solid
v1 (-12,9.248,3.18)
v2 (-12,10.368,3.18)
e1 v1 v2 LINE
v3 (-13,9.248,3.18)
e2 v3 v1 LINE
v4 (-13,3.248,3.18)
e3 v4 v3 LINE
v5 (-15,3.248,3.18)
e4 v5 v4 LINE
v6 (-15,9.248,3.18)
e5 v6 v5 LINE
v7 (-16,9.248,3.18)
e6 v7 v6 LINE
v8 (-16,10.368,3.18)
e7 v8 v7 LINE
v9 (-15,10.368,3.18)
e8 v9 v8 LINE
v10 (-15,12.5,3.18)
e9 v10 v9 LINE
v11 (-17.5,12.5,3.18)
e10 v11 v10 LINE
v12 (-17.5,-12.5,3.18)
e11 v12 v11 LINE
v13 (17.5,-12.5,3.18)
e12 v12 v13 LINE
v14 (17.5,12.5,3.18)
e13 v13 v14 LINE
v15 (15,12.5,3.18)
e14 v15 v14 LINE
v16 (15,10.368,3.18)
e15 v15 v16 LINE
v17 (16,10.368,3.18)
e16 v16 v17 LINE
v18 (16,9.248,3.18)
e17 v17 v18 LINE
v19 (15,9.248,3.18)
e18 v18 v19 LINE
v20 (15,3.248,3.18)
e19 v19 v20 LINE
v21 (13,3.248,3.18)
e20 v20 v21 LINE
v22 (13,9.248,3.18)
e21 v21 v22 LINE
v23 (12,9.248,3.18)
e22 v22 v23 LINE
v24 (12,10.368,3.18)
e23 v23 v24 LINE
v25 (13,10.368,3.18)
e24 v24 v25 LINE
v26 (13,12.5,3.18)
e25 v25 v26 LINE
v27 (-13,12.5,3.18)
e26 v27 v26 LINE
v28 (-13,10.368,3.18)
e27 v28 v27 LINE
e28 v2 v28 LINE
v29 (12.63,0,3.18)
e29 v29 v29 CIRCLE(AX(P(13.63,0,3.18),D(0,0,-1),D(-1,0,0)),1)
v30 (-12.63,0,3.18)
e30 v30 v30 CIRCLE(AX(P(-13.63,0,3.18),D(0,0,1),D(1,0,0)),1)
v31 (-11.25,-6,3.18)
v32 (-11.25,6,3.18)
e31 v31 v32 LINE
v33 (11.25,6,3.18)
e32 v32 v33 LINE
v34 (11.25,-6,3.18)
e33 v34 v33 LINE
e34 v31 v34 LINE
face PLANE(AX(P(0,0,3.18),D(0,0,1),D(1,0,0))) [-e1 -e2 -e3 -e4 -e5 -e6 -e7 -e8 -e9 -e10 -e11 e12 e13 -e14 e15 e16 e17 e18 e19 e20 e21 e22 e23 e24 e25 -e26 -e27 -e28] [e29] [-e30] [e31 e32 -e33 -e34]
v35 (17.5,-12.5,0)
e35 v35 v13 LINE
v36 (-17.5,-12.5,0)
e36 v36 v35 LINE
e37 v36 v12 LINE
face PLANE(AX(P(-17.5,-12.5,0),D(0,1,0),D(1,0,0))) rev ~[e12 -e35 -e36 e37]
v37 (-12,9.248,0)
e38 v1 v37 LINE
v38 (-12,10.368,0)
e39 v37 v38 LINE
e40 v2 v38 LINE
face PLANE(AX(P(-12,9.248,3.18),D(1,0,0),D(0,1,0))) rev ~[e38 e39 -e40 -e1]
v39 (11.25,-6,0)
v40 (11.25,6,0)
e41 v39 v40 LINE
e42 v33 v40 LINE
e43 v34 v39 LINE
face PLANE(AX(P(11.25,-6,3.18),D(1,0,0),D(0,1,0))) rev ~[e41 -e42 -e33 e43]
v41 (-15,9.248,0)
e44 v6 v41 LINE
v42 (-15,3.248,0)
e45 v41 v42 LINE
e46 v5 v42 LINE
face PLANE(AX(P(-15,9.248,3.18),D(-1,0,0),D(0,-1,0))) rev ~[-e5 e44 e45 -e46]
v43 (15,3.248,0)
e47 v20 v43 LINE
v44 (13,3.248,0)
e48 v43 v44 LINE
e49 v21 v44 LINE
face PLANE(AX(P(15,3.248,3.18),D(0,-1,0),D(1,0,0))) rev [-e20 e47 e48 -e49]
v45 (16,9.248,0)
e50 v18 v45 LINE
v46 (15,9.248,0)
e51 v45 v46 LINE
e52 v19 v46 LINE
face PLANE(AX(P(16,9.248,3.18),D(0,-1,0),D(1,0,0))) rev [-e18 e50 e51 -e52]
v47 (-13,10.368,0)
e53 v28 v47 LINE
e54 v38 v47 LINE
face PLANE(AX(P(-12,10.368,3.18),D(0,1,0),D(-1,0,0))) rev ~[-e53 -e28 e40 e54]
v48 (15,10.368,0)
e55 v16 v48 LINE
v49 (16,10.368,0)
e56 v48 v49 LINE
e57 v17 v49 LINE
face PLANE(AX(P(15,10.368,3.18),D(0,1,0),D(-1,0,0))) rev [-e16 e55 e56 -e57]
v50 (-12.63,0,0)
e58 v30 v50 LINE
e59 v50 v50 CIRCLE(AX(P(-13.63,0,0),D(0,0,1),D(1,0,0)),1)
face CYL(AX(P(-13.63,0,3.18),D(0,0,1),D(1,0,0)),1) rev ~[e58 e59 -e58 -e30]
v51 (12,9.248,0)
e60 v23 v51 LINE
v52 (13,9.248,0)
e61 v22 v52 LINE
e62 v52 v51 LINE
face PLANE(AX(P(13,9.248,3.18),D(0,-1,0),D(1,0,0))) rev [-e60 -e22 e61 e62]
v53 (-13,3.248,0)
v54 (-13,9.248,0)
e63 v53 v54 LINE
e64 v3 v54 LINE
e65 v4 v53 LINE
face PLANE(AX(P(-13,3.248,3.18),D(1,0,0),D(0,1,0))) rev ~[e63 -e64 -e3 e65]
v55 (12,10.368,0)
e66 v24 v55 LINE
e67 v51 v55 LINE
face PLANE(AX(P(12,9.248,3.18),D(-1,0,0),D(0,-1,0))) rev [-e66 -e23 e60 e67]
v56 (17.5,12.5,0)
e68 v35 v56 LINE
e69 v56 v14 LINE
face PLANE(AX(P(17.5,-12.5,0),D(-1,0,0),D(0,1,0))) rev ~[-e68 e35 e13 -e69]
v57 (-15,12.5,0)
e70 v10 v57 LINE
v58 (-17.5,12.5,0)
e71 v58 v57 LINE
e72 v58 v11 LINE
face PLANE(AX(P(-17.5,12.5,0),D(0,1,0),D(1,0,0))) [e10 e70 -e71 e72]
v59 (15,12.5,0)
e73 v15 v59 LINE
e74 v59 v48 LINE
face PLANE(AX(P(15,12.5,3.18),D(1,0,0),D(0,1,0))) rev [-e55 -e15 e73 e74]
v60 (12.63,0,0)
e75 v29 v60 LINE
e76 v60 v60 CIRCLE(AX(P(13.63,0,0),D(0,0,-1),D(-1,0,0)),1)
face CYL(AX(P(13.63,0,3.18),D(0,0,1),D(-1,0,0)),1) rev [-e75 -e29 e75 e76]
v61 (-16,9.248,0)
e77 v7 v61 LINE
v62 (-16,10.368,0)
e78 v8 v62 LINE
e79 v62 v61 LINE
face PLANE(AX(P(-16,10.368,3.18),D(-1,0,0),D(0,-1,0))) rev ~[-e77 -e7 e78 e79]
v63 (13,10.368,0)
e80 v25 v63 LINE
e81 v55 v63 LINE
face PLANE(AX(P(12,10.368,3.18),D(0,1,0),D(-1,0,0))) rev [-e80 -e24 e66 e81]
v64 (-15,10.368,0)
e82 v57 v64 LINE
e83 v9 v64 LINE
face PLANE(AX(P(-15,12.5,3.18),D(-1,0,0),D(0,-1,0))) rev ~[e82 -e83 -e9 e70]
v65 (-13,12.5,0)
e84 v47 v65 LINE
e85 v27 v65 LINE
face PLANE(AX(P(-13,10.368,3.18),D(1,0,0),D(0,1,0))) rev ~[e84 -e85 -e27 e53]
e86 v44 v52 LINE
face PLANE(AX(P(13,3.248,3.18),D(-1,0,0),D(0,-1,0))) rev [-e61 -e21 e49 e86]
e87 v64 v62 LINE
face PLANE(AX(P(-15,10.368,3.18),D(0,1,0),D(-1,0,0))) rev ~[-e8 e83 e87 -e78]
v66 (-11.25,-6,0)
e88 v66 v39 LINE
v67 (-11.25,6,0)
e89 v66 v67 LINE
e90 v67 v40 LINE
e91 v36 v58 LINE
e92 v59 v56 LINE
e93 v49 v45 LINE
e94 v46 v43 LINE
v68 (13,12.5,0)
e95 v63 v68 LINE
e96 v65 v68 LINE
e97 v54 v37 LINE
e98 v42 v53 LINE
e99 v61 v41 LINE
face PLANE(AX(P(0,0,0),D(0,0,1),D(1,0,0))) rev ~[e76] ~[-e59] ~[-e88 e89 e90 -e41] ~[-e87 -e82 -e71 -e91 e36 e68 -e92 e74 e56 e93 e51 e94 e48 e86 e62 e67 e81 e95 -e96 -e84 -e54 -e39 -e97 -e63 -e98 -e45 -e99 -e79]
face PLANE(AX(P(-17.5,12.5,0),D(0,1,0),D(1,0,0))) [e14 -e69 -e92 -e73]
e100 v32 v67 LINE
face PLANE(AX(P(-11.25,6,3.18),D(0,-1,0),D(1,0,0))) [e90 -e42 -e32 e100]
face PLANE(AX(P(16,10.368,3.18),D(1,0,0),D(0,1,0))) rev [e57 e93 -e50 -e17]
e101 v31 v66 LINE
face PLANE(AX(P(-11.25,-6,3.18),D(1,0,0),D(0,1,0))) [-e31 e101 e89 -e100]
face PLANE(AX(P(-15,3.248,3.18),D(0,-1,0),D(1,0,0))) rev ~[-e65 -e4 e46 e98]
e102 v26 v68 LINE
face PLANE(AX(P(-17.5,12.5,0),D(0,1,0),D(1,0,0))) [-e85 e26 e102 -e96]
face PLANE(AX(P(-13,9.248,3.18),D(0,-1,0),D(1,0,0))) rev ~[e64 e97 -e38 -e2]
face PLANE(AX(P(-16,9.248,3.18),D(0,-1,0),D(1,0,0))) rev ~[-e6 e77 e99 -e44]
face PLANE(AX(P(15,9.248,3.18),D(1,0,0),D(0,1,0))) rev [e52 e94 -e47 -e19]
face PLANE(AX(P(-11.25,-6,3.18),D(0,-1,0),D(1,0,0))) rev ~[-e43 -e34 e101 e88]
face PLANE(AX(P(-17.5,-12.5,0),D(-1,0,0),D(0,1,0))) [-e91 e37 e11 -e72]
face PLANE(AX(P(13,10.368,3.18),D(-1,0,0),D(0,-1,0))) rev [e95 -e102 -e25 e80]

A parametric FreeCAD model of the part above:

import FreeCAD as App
import Part
import Sketcher
Q = App.Units.Quantity

doc = App.newDocument("Part")
body = doc.addObject("PartDesign::Body", "Body")

sketch1 = body.newObject("Sketcher::SketchObject", "Sketch")
sketch1.AttachmentSupport = (doc.getObject("XY_Plane"), [""])
sketch1.MapMode = "FlatFace"
sketch1.addGeometry([
    Part.LineSegment(App.Vector(-18, 12, 0), App.Vector(-18, -12, 0)),
    Part.LineSegment(App.Vector(-18, -12, 0), App.Vector(18, -12, 0)),
    Part.LineSegment(App.Vector(18, -12, 0), App.Vector(18, 12, 0)),
    Part.LineSegment(App.Vector(18, 12, 0), App.Vector(-18, 12, 0)),
], False)
sketch1.addConstraint([
    Sketcher.Constraint("Coincident", 0, 2, 1, 1),
    Sketcher.Constraint("Coincident", 1, 2, 2, 1),
    Sketcher.Constraint("Coincident", 2, 2, 3, 1),
    Sketcher.Constraint("Coincident", 3, 2, 0, 1),
    Sketcher.Constraint("Vertical", 0),
    Sketcher.Constraint("Horizontal", 1),
    Sketcher.Constraint("Vertical", 2),
    Sketcher.Constraint("Horizontal", 3),
    Sketcher.Constraint("Symmetric", 0, 2, 2, 2, -1, 1),
    Sketcher.Constraint("DistanceX", 1, 1, 1, 2, Q("35 mm")),
    Sketcher.Constraint("DistanceY", 0, 2, 0, 1, Q("25 mm")),
])
pad1 = body.newObject("PartDesign::Pad", "Pad")
pad1.Profile = sketch1
pad1.Length = 3.18

sketch2 = body.newObject("Sketcher::SketchObject", "Sketch001")
sketch2.AttachmentSupport = (doc.getObject("XY_Plane"), [""])
sketch2.MapMode = "FlatFace"
sketch2.AttachmentOffset = App.Placement(App.Vector(0, 0, 3.18), App.Rotation())
sketch2.addGeometry([
    Part.LineSegment(App.Vector(-11, 6, 0), App.Vector(-11, -6, 0)),
    Part.LineSegment(App.Vector(-11, -6, 0), App.Vector(11, -6, 0)),
    Part.LineSegment(App.Vector(11, -6, 0), App.Vector(11, 6, 0)),
    Part.LineSegment(App.Vector(11, 6, 0), App.Vector(-11, 6, 0)),
], False)
sketch2.addConstraint([
    Sketcher.Constraint("Coincident", 0, 2, 1, 1),
    Sketcher.Constraint("Coincident", 1, 2, 2, 1),
    Sketcher.Constraint("Coincident", 2, 2, 3, 1),
    Sketcher.Constraint("Coincident", 3, 2, 0, 1),
    Sketcher.Constraint("Vertical", 0),
    Sketcher.Constraint("Horizontal", 1),
    Sketcher.Constraint("Vertical", 2),
    Sketcher.Constraint("Horizontal", 3),
    Sketcher.Constraint("Symmetric", 0, 2, 2, 2, -1, 1),
    Sketcher.Constraint("DistanceY", 0, 2, 0, 1, Q("12 mm")),
    Sketcher.Constraint("DistanceX", 1, 1, 1, 2, Q("22.5 mm")),
])
pocket1 = body.newObject("PartDesign::Pocket", "Pocket")
pocket1.Profile = sketch2
pocket1.Length = 3.18

sketch3 = body.newObject("Sketcher::SketchObject", "Sketch002")
sketch3.AttachmentSupport = (doc.getObject("XY_Plane"), [""])
sketch3.MapMode = "FlatFace"
sketch3.AttachmentOffset = App.Placement(App.Vector(0, 0, 3.18), App.Rotation())
sketch3.addGeometry(Part.Circle(App.Vector(-13.6, 0, 0), App.Vector(0, 0, 1), 1), False)
sketch3.addConstraint([
    Sketcher.Constraint("PointOnObject", 0, 3, -1),
    Sketcher.Constraint("Diameter", 0, Q("2 mm")),
    Sketcher.Constraint("DistanceX", 0, 3, -1, 1, Q("13.63 mm")),
])
pocket2 = body.newObject("PartDesign::Pocket", "Pocket001")
pocket2.Profile = sketch3
pocket2.Length = 3.18
doc.recompute()

mirrored = body.newObject("PartDesign::Mirrored", "Mirrored")
mirrored.Originals = [pocket2]
mirrored.MirrorPlane = (doc.getObject("YZ_Plane"), [""])
body.Tip = mirrored

sketch4 = body.newObject("Sketcher::SketchObject", "Sketch003")
sketch4.AttachmentSupport = (doc.getObject("XY_Plane"), [""])
sketch4.MapMode = "FlatFace"
sketch4.AttachmentOffset = App.Placement(App.Vector(0, 0, 3.18), App.Rotation())
sketch4.addGeometry([
    Part.LineSegment(App.Vector(-13, 12.5, 0), App.Vector(-15, 12.5, 0)),
    Part.LineSegment(App.Vector(-15, 12.5, 0), App.Vector(-15, 10.4, 0)),
    Part.LineSegment(App.Vector(-15, 10.4, 0), App.Vector(-16, 10.4, 0)),
    Part.LineSegment(App.Vector(-16, 10.4, 0), App.Vector(-16, 9.2, 0)),
    Part.LineSegment(App.Vector(-16, 9.2, 0), App.Vector(-15, 9.2, 0)),
    Part.LineSegment(App.Vector(-15, 9.2, 0), App.Vector(-15, 3.2, 0)),
    Part.LineSegment(App.Vector(-15, 3.2, 0), App.Vector(-13, 3.2, 0)),
    Part.LineSegment(App.Vector(-13, 3.2, 0), App.Vector(-13, 9.2, 0)),
    Part.LineSegment(App.Vector(-13, 9.2, 0), App.Vector(-12, 9.2, 0)),
    Part.LineSegment(App.Vector(-12, 9.2, 0), App.Vector(-12, 10.4, 0)),
    Part.LineSegment(App.Vector(-12, 10.4, 0), App.Vector(-13, 10.4, 0)),
    Part.LineSegment(App.Vector(-13, 10.4, 0), App.Vector(-13, 12.5, 0)),
], False)
sketch4.addConstraint([
    Sketcher.Constraint("Coincident", 0, 2, 1, 1),
    Sketcher.Constraint("Coincident", 1, 2, 2, 1),
    Sketcher.Constraint("Coincident", 2, 2, 3, 1),
    Sketcher.Constraint("Coincident", 3, 2, 4, 1),
    Sketcher.Constraint("Coincident", 4, 2, 5, 1),
    Sketcher.Constraint("Coincident", 5, 2, 6, 1),
    Sketcher.Constraint("Coincident", 6, 2, 7, 1),
    Sketcher.Constraint("Coincident", 7, 2, 8, 1),
    Sketcher.Constraint("Coincident", 8, 2, 9, 1),
    Sketcher.Constraint("Coincident", 9, 2, 10, 1),
    Sketcher.Constraint("Coincident", 10, 2, 11, 1),
    Sketcher.Constraint("Coincident", 11, 2, 0, 1),
    Sketcher.Constraint("Horizontal", 0),
    Sketcher.Constraint("Vertical", 1),
    Sketcher.Constraint("Horizontal", 2),
    Sketcher.Constraint("Vertical", 3),
    Sketcher.Constraint("Horizontal", 4),
    Sketcher.Constraint("Vertical", 5),
    Sketcher.Constraint("Horizontal", 6),
    Sketcher.Constraint("Vertical", 7),
    Sketcher.Constraint("Horizontal", 8),
    Sketcher.Constraint("Vertical", 9),
    Sketcher.Constraint("Horizontal", 10),
    Sketcher.Constraint("Vertical", 11),
    Sketcher.Constraint("Horizontal", 4, 2, 7, 2),
    Sketcher.Constraint("Horizontal", 2, 2, 9, 2),
    Sketcher.Constraint("Vertical", 1, 2, 4, 2),
    Sketcher.Constraint("Vertical", 7, 2, 10, 2),
    Sketcher.Constraint("Equal", 4, 8),
    Sketcher.Constraint("DistanceX", 0, 2, 0, 1, Q("2 mm")),
    Sketcher.Constraint("DistanceX", 2, 2, 2, 1, Q("1 mm")),
    Sketcher.Constraint("DistanceY", 5, 2, 5, 1, Q("6 mm")),
    Sketcher.Constraint("DistanceX", 0, 2, -1, 1, Q("15 mm")),
    Sketcher.Constraint("DistanceY", 3, 2, 3, 1, Q("1.12 mm")),
    Sketcher.Constraint("DistanceY", -1, 1, 0, 2, Q("12.5 mm")),
    Sketcher.Constraint("DistanceY", 1, 2, 1, 1, Q("2.132 mm")),
])
pocket3 = body.newObject("PartDesign::Pocket", "Pocket002")
pocket3.Profile = sketch4
pocket3.Length = 3.18
doc.recompute()

mirrored2 = body.newObject("PartDesign::Mirrored", "Mirrored001")
mirrored2.Originals = [pocket3]
mirrored2.MirrorPlane = (doc.getObject("YZ_Plane"), [""])
body.Tip = mirrored2

doc.recompute()
